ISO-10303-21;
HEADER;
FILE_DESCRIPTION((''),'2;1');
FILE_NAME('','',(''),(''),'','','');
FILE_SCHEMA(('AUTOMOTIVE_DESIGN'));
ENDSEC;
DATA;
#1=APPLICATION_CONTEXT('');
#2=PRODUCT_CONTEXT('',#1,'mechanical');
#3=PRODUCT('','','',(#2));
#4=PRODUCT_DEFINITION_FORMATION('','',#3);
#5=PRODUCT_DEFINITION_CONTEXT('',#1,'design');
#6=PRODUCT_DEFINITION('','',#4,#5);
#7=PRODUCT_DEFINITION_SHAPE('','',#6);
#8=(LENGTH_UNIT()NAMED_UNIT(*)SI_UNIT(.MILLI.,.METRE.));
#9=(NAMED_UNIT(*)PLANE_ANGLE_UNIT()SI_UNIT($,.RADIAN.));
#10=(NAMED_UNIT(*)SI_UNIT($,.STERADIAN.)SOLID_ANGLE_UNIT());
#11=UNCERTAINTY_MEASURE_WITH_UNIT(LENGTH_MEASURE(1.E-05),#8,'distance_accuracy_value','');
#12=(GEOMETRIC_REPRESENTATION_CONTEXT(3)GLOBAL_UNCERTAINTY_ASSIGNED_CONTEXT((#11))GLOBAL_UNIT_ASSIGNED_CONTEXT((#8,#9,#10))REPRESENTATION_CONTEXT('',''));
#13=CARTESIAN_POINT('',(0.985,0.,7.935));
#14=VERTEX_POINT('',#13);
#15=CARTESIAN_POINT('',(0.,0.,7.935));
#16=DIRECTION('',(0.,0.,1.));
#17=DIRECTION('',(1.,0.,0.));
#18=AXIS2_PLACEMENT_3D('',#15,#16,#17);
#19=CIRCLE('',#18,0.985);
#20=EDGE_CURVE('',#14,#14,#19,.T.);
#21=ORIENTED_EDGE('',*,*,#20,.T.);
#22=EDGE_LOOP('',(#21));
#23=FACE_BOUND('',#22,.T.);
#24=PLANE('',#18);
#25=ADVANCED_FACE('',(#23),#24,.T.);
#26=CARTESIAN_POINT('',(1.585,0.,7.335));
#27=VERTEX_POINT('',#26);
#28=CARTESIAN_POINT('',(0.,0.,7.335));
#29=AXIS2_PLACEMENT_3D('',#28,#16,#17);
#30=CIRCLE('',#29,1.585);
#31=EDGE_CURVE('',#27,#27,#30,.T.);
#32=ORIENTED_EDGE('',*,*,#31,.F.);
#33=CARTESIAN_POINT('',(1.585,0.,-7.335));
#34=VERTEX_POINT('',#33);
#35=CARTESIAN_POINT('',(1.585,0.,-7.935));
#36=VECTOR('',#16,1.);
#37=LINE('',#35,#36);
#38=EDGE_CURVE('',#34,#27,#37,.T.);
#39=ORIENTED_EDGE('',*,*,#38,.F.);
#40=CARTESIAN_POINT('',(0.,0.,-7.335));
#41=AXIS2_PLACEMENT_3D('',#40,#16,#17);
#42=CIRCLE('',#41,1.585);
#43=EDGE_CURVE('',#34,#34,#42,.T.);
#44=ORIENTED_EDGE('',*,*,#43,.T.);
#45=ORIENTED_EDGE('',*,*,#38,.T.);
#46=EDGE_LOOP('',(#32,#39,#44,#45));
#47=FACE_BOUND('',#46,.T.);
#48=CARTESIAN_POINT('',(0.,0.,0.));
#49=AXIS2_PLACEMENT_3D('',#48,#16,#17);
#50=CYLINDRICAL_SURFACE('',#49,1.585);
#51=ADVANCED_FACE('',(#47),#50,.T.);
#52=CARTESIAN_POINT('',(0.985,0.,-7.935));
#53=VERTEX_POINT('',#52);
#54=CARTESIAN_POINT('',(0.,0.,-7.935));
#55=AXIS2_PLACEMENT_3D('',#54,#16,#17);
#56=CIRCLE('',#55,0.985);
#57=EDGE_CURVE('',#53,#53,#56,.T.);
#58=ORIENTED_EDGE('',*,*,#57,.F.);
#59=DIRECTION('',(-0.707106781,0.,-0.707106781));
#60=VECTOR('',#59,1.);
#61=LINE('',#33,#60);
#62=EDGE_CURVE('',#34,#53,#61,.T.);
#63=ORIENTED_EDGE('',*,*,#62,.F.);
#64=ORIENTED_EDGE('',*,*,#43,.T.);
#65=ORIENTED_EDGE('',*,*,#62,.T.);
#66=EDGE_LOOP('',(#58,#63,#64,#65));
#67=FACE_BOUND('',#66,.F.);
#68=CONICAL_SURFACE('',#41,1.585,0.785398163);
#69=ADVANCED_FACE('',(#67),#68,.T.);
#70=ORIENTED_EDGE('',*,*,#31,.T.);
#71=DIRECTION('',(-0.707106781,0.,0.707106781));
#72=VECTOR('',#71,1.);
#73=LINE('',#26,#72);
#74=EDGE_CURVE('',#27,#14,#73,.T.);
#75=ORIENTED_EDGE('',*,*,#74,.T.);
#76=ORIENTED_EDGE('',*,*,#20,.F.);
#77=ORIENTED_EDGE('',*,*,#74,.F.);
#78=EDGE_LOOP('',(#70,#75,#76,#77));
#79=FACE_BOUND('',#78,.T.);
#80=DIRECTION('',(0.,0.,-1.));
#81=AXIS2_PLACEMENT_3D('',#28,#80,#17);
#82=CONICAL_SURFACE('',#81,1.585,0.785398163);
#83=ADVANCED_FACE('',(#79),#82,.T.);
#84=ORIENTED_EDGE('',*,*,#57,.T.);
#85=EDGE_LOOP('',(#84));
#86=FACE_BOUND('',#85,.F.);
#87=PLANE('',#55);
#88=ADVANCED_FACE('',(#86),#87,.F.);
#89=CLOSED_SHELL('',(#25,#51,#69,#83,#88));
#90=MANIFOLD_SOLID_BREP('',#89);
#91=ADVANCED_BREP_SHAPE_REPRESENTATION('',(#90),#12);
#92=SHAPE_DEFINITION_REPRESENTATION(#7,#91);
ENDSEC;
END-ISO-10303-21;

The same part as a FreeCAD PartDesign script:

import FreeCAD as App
import Part
import Sketcher
Q = App.Units.Quantity


def edges_at(feature, points):
    """Names of the edges that pass closest to the given points."""
    edges = feature.Shape.Edges
    near = lambda p: min(range(len(edges)), key=lambda i: edges[i].distToShape(Part.Vertex(*p))[0])
    return sorted({f"Edge{near(p) + 1}" for p in points})

doc = App.newDocument("Part")
body = doc.addObject("PartDesign::Body", "Body")

# Sketch on XY plane
sketch1 = body.newObject("Sketcher::SketchObject", "Sketch")
sketch1.AttachmentSupport = (doc.getObject("XY_Plane"), [""])
sketch1.MapMode = "FlatFace"
sketch1.addGeometry(Part.Circle(App.Vector(0, 0, 0), App.Vector(0, 0, 1), 1.6), False)
sketch1.addConstraint([
    Sketcher.Constraint("Coincident", 0, 3, -1, 1),
    Sketcher.Constraint("Diameter", 0, Q("3.17 mm")),
])
pad1 = body.newObject("PartDesign::Pad", "Pad")
pad1.Profile = sketch1
pad1.Length = 15.87
pad1.Midplane = True
doc.recompute()

chamfer = body.newObject("PartDesign::Chamfer", "Chamfer")
chamfer.Base = (pad1, edges_at(pad1, [(-1.585, 0, -7.935), (-1.585, 0, 7.935)]))
chamfer.Size = 0.6

doc.recompute()
